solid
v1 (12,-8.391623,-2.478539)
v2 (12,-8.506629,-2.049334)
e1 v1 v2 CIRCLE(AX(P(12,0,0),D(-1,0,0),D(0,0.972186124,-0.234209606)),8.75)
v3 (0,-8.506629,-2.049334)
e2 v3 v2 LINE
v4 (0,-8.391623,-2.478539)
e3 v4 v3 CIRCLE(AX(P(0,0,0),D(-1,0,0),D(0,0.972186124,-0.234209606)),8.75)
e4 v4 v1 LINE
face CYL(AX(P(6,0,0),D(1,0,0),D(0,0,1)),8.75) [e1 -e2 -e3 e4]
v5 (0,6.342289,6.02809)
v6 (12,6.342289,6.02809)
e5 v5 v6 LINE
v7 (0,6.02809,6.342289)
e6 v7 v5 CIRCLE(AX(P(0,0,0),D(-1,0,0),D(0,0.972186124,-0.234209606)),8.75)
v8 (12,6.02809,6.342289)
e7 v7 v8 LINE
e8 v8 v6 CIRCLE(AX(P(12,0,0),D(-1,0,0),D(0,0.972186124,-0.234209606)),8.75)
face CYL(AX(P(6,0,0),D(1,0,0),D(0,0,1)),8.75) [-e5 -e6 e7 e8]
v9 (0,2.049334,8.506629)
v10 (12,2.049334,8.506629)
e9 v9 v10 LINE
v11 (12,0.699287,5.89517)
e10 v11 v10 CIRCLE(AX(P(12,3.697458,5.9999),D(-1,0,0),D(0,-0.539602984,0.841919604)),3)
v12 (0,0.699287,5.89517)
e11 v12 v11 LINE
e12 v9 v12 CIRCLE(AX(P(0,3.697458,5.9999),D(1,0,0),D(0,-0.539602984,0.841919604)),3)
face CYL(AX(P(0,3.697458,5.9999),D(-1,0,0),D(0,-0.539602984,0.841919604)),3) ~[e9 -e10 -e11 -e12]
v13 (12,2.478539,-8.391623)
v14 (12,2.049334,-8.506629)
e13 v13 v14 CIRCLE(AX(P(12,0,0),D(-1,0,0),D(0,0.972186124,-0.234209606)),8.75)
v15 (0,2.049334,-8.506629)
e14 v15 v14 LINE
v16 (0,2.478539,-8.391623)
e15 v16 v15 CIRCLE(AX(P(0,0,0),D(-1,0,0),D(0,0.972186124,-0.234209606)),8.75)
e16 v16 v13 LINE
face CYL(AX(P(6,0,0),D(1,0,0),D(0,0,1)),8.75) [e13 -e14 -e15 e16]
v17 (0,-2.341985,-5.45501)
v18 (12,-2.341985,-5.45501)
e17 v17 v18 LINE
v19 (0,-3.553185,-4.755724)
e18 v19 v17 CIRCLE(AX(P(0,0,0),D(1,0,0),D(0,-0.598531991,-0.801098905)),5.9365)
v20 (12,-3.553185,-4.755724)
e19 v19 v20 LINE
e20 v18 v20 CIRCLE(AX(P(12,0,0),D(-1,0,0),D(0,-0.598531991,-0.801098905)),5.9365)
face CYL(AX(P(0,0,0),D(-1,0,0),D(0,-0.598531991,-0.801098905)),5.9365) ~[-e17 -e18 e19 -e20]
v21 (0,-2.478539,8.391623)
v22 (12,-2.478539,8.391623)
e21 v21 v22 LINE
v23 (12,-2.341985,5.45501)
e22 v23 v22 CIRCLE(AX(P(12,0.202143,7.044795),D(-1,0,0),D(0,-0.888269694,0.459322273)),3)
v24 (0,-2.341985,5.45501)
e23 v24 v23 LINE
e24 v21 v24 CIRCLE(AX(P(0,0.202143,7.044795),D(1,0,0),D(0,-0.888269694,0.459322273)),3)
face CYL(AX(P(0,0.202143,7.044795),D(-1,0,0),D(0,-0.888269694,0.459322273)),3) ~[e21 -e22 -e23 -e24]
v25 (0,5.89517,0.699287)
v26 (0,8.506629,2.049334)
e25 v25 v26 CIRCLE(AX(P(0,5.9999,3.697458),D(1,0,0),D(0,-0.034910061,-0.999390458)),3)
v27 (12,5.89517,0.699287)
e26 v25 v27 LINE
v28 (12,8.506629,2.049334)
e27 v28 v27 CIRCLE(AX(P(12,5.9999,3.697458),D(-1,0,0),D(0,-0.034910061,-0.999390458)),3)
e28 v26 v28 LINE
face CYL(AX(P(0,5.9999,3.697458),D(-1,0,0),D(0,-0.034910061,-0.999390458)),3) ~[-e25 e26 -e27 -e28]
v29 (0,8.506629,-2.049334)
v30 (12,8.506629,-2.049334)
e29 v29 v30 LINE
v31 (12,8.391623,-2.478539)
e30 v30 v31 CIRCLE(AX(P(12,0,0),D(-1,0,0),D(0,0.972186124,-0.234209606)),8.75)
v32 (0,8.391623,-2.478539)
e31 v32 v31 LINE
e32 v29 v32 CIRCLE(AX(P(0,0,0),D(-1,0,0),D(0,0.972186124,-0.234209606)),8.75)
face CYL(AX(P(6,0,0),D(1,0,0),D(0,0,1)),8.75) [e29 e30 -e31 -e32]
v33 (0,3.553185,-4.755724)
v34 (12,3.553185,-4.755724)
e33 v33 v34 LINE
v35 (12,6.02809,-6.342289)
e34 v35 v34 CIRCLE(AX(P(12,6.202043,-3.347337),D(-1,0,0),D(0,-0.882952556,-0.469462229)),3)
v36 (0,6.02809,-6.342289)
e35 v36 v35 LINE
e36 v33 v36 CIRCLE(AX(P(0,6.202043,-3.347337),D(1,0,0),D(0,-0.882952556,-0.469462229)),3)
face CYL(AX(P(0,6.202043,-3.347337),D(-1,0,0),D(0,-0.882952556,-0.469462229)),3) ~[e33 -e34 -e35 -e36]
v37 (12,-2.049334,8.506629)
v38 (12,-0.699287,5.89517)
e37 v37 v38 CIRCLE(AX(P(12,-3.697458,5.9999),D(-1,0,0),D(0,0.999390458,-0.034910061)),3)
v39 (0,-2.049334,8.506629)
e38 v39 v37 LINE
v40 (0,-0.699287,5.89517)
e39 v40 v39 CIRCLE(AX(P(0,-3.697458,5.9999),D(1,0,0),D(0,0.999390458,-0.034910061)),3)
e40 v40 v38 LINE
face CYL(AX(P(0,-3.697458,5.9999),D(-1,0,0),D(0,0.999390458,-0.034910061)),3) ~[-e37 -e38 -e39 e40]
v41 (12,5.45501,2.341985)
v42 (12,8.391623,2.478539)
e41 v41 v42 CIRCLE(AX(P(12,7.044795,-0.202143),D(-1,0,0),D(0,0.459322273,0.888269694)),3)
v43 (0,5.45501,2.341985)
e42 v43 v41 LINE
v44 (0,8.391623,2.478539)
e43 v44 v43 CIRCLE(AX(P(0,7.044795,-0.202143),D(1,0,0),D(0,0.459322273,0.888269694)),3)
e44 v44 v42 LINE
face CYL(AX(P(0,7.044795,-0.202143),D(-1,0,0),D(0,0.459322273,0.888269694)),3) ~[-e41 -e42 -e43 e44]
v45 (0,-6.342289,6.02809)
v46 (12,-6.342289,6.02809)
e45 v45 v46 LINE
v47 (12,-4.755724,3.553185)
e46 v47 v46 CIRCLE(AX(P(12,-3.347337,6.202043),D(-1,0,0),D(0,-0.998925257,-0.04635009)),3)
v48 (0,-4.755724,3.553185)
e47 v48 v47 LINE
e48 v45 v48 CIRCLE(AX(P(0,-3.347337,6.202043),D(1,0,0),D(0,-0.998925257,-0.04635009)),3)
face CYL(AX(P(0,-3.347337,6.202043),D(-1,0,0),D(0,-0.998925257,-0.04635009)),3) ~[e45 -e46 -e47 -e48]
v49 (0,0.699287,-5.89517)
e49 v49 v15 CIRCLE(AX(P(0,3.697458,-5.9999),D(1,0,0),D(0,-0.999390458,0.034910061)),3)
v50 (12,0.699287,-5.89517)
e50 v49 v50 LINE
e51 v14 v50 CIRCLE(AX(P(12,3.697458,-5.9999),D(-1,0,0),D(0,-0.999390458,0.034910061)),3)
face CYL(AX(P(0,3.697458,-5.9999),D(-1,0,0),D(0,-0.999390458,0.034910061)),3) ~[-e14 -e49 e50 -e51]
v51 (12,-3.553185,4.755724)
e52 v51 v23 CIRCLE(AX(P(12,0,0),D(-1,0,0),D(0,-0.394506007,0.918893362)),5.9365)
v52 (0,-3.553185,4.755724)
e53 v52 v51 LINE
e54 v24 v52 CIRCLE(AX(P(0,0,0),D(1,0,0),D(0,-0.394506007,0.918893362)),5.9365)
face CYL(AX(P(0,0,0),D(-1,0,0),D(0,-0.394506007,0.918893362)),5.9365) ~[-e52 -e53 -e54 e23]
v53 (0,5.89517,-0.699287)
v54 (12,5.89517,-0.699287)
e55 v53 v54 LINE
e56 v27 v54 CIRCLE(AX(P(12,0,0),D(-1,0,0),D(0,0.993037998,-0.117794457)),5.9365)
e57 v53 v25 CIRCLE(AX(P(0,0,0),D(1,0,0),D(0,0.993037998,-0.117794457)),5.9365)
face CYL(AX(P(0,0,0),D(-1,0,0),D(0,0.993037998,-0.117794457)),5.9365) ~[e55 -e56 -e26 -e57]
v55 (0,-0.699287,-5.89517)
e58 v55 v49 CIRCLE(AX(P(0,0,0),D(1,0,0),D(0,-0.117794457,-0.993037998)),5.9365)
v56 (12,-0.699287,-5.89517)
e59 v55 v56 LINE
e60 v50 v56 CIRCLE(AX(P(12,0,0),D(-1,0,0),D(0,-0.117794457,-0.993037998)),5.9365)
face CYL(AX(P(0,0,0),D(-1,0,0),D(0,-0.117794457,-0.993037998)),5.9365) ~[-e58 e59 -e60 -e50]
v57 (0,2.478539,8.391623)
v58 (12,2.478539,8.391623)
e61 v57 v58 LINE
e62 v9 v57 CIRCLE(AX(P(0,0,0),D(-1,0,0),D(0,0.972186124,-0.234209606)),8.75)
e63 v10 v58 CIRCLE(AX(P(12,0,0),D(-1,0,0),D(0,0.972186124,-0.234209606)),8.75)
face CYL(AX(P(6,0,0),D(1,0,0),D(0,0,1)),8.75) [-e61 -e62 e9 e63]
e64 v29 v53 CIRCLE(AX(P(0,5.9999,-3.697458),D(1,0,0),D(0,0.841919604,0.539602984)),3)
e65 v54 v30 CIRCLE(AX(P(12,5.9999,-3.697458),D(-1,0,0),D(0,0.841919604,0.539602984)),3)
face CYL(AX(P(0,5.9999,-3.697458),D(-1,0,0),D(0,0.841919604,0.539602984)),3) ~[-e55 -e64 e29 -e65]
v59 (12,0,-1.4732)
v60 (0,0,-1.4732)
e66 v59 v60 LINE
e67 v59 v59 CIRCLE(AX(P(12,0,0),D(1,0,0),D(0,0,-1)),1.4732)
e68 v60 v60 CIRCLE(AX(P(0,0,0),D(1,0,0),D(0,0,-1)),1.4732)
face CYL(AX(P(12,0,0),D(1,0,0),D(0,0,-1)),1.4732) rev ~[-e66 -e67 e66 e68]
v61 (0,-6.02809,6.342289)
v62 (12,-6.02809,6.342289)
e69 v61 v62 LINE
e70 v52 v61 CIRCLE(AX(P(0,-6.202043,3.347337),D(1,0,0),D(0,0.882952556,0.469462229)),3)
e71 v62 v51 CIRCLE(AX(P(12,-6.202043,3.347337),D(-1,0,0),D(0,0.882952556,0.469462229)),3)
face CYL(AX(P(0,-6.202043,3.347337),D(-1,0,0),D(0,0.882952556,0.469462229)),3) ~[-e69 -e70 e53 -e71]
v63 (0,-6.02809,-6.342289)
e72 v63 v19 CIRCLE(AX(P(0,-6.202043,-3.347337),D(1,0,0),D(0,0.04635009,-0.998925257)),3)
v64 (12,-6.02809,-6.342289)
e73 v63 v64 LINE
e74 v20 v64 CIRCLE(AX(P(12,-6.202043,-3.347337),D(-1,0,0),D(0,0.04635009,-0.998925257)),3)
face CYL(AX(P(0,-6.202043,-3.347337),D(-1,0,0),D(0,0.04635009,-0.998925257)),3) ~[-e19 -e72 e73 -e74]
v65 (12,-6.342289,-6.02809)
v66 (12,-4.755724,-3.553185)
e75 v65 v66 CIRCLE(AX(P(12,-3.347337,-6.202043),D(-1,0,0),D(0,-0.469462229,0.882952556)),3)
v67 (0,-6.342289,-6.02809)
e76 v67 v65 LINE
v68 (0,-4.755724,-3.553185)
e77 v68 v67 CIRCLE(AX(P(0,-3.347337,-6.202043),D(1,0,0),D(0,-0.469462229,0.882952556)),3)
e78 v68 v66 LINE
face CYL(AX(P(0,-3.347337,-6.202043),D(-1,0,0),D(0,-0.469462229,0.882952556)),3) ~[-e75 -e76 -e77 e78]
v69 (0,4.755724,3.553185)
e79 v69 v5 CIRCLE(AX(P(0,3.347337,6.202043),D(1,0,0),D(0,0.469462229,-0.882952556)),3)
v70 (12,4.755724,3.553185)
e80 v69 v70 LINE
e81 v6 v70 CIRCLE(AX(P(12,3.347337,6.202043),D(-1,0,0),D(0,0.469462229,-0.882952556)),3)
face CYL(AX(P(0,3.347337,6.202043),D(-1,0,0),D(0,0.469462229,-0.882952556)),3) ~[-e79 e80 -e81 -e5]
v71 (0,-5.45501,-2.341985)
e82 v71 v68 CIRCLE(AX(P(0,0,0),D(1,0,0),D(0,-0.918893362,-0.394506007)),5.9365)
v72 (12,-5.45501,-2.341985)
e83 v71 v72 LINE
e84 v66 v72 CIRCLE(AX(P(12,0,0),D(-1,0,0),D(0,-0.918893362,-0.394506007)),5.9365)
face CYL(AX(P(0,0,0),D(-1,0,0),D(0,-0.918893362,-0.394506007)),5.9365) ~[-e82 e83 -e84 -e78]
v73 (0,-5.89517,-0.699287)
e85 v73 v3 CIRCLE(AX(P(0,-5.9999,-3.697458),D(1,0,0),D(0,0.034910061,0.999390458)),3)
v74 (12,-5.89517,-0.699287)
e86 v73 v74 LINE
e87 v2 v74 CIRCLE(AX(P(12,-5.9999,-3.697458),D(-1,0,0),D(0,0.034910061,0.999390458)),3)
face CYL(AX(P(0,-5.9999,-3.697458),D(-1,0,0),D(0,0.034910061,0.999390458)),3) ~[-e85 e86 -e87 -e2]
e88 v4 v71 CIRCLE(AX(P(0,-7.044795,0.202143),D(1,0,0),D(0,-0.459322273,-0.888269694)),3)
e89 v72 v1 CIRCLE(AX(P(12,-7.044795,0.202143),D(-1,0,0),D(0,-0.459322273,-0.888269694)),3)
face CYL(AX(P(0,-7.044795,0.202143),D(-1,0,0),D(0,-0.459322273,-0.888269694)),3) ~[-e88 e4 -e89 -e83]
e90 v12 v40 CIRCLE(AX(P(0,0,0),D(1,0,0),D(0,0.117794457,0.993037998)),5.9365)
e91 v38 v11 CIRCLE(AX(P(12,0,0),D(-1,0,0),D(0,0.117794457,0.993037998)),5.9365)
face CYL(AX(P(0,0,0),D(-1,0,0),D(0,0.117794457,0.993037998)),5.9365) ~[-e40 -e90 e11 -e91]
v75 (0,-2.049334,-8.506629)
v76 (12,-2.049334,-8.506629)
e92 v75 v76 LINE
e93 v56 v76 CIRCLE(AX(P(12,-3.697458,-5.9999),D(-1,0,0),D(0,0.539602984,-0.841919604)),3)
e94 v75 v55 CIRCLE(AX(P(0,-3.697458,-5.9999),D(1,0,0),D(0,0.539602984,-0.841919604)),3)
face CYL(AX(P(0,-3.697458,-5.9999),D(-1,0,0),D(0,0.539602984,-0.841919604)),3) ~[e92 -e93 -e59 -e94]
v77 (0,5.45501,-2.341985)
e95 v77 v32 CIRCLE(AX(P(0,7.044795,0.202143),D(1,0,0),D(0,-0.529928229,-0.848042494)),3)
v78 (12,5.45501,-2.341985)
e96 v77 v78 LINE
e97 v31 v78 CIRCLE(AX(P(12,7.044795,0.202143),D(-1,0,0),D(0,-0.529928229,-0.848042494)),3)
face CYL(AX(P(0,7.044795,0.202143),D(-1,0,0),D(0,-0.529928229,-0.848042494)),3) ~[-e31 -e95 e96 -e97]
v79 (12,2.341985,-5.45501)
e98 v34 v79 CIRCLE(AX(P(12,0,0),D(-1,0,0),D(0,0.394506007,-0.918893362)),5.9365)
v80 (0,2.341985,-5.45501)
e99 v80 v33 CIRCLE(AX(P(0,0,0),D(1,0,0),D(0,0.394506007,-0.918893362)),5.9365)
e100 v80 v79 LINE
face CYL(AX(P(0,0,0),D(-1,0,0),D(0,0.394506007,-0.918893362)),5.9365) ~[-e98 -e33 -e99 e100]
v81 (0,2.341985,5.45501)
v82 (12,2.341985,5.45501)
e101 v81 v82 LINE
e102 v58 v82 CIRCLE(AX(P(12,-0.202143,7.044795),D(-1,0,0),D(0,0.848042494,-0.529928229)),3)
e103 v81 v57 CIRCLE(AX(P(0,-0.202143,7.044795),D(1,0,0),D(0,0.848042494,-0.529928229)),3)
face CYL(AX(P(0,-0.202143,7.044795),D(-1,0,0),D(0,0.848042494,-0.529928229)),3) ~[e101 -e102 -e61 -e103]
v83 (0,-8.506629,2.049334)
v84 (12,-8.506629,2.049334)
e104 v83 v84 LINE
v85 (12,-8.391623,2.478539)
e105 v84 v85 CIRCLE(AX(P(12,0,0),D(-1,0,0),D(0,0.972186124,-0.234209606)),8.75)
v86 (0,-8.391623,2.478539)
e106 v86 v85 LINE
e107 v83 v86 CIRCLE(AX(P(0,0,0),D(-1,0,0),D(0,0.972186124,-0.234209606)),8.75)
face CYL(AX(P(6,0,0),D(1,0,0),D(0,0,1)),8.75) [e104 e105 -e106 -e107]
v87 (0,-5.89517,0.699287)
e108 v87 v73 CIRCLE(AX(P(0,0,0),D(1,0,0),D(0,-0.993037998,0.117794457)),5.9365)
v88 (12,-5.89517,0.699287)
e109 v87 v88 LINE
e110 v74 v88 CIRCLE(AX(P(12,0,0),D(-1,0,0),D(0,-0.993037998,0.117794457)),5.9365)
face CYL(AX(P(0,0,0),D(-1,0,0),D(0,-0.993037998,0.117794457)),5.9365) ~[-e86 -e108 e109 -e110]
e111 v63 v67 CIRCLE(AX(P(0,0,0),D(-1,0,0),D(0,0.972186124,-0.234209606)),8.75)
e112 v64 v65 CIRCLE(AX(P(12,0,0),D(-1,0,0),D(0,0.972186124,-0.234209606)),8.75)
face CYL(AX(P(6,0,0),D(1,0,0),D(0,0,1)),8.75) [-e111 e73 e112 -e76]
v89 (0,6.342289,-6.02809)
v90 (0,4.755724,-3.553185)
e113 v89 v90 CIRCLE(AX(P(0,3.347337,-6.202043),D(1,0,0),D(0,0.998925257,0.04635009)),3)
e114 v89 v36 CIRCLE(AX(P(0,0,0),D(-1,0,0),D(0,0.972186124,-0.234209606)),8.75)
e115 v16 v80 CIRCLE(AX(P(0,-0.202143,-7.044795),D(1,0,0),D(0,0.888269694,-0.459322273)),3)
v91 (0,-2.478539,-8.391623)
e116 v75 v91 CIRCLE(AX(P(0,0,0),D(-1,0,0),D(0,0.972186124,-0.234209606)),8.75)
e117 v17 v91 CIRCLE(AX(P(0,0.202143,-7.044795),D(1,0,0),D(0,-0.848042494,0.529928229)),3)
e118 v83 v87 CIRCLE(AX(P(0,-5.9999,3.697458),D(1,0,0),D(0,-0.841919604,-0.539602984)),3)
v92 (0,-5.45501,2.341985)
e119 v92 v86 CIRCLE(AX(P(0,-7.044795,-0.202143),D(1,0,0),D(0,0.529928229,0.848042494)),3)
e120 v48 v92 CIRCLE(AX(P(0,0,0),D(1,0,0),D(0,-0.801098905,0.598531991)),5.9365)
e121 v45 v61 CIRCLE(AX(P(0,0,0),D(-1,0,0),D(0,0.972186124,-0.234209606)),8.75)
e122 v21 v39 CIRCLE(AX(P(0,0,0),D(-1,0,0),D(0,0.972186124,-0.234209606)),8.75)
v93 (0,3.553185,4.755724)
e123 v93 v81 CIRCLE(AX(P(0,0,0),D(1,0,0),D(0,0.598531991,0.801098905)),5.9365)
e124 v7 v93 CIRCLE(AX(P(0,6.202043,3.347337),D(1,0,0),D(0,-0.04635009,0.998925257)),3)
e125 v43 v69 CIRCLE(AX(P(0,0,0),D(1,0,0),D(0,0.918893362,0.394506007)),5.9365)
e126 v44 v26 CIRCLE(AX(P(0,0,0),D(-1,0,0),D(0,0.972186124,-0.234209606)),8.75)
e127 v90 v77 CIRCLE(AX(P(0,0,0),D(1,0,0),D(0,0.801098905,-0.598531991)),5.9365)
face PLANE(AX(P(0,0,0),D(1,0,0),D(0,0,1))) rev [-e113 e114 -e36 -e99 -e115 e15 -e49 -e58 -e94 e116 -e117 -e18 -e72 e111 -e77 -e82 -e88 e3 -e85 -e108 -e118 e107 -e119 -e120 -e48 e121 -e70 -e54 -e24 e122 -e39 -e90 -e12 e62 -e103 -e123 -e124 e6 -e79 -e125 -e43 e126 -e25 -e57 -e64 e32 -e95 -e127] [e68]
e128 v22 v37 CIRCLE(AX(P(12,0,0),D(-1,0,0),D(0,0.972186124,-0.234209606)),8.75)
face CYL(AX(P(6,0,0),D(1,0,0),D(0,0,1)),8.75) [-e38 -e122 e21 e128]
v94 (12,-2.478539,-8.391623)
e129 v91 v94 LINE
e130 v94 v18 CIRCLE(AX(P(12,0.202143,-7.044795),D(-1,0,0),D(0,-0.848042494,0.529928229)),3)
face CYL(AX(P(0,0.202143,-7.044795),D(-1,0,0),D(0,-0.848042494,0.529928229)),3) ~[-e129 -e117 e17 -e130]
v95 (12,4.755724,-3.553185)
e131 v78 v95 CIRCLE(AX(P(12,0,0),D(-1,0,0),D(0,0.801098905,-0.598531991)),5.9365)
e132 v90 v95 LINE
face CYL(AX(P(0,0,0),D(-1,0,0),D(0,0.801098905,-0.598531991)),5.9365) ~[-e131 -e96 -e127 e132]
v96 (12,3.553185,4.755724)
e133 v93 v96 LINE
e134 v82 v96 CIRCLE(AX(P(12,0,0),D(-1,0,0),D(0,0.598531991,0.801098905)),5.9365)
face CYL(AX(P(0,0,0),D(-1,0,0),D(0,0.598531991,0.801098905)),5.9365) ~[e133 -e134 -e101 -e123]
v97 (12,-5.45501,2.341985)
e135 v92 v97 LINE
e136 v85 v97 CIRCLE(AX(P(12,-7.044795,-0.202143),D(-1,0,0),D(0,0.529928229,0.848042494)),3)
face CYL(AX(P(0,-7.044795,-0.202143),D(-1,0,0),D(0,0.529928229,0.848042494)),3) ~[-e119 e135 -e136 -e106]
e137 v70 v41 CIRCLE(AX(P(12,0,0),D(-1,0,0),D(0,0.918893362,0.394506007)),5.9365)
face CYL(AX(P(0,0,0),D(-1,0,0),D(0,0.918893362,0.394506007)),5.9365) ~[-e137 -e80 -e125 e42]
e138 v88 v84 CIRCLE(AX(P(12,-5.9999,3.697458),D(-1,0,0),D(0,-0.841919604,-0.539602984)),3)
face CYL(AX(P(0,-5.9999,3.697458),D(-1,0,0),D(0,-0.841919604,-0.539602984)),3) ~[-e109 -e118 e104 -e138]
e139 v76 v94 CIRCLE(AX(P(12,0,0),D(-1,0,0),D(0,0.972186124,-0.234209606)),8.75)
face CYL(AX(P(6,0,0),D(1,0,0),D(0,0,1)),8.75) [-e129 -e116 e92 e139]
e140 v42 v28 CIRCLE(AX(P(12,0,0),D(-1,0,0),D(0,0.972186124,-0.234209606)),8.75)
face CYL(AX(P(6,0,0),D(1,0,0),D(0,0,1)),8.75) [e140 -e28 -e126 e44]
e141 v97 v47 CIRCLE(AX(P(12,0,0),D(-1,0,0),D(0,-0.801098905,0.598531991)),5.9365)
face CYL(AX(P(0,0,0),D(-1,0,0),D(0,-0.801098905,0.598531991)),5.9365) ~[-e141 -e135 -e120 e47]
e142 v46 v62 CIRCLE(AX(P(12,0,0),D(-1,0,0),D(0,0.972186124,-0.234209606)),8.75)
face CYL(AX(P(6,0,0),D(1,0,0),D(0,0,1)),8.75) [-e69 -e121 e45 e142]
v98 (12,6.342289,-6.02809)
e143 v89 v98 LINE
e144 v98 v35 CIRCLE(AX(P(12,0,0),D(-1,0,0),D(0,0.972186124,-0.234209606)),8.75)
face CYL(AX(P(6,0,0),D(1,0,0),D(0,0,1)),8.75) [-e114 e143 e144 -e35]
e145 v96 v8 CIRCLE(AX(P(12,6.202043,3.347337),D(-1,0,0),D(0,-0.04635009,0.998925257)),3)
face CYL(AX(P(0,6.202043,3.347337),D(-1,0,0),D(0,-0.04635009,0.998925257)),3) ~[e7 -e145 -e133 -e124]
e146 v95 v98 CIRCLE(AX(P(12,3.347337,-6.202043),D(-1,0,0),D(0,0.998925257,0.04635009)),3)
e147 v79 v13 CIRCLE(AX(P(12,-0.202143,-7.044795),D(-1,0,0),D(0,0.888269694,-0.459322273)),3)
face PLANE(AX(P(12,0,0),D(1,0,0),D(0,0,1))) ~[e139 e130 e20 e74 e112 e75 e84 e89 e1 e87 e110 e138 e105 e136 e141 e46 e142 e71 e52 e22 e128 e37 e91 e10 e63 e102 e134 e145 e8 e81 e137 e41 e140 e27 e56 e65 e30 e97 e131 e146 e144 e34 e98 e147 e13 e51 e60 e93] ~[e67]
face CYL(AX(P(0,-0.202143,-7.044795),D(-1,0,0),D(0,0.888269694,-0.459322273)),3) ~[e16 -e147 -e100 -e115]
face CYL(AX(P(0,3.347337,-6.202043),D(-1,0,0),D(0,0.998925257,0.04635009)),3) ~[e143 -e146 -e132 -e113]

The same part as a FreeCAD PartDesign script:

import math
import FreeCAD as App
import Part
import Sketcher

V = App.Vector

doc = App.newDocument("Part")
params = doc.addObject("Spreadsheet::Sheet", "Params")
for row, (alias, value) in enumerate([
    ("sketch1_width", "12 mm"),
    ("sketch1_height", "8.75 mm"),
    ("revolution_angle", "360 deg"),
    ("sketch2_radius", "3 mm"),
    ("sketch3_diameter", "0.8 mm"),
    ("pocket2_length", "100.000102 mm"),
], start=1):
    params.set(f"A{row}", alias)
    params.set(f"B{row}", "=" + value)
    params.setAlias(f"B{row}", alias)

body = doc.addObject("PartDesign::Body", "Body")

# Sketch on XZ plane
sketch1 = body.newObject("Sketcher::SketchObject", "Sketch")
sketch1.AttachmentSupport = (doc.getObject("XZ_Plane"), [""])
sketch1.MapMode = "FlatFace"
sketch1.addGeometry([
    Part.LineSegment(V(0, -8.75, 0), V(0, 0, 0)),
    Part.LineSegment(V(0, 0, 0), V(12, 0, 0)),
    Part.LineSegment(V(12, 0, 0), V(12, -8.75, 0)),
    Part.LineSegment(V(12, -8.75, 0), V(0, -8.75, 0)),
], False)
sketch1.addConstraint([
    Sketcher.Constraint("Coincident", 0, 2, 1, 1),
    Sketcher.Constraint("Coincident", 1, 2, 2, 1),
    Sketcher.Constraint("Coincident", 2, 2, 3, 1),
    Sketcher.Constraint("Coincident", 3, 2, 0, 1),
    Sketcher.Constraint("Vertical", 0),
    Sketcher.Constraint("Horizontal", 1),
    Sketcher.Constraint("Vertical", 2),
    Sketcher.Constraint("Horizontal", 3),
    Sketcher.Constraint("Coincident", 0, 2, -1, 1),
    Sketcher.Constraint("DistanceX", 1, 1, 1, 2, 12.0),
    Sketcher.Constraint("DistanceY", 0, 1, 0, 2, 8.75),
])
sketch1.setExpression("Constraints[9]", "Params.sketch1_width")
sketch1.setExpression("Constraints[10]", "Params.sketch1_height")
revolution = body.newObject("PartDesign::Revolution", "Revolution")
revolution.Profile = sketch1
revolution.ReferenceAxis = (sketch1, ["H_Axis"])
revolution.setExpression("Angle", "Params.revolution_angle")

# Sketch on YZ plane
sketch2 = body.newObject("Sketcher::SketchObject", "Sketch001")
sketch2.AttachmentSupport = (doc.getObject("YZ_Plane"), [""])
sketch2.MapMode = "FlatFace"
sketch2.addGeometry([
    Part.ArcOfCircle(Part.Circle(V(0, 0, 0), V(0, 0, 1), 5.9365), math.radians(-6.764831), math.radians(6.764831)),
    Part.ArcOfCircle(Part.Circle(V(5.9999, -3.697458, 0), V(0, 0, 1), 3), math.radians(32.656616), math.radians(92.000606)),
    Part.ArcOfCircle(Part.Circle(V(0, 0, 0), V(0, 0, 1), 8.7754), math.radians(-13.702014), math.radians(13.702014)),
    Part.ArcOfCircle(Part.Circle(V(5.9999, 3.697458, 0), V(0, 0, 1), 3), math.radians(-92.000606), math.radians(-32.656616)),
], False)
sketch2.addConstraint([
    Sketcher.Constraint("Coincident", 0, 1, 1, 2),
    Sketcher.Constraint("Coincident", 1, 1, 2, 1),
    Sketcher.Constraint("Coincident", 2, 2, 3, 2),
    Sketcher.Constraint("Coincident", 3, 1, 0, 2),
    Sketcher.Constraint("Coincident", 0, 3, -1, 1),
    Sketcher.Constraint("Coincident", 2, 3, -1, 1),
    Sketcher.Constraint("Equal", 1, 3),
    Sketcher.Constraint("Symmetric", 1, 3, 3, 3, -1),
    Sketcher.Constraint("Radius", 1, 3.0),
    Sketcher.Constraint("Radius", 0, 5.9365),
    Sketcher.Constraint("Radius", 2, 8.7754),
    Sketcher.Constraint("DistanceX", -1, 1, 1, 3, 5.9999),
    Sketcher.Constraint("DistanceY", 1, 1, 2, 2, 4.157298),
])
sketch2.setExpression("Constraints[8]", "Params.sketch2_radius")
pocket1 = body.newObject("PartDesign::Pocket", "Pocket")
pocket1.Profile = sketch2
pocket1.Type = "ThroughAll"
pocket1.Reversed = True
doc.recompute()

polarpattern = body.newObject("PartDesign::PolarPattern", "PolarPattern")
polarpattern.Originals = [pocket1]
polarpattern.Axis = (doc.getObject("X_Axis"), [""])
polarpattern.Angle = 360
polarpattern.Occurrences = 12
body.Tip = polarpattern

# Sketch on YZ plane
sketch3 = body.newObject("Sketcher::SketchObject", "Sketch002")
sketch3.AttachmentSupport = (doc.getObject("YZ_Plane"), [""])
sketch3.MapMode = "FlatFace"
sketch3.addGeometry(Part.Circle(V(0, 0, 0), V(0, 0, 1), 0.4), False)
sketch3.addConstraint([
    Sketcher.Constraint("Coincident", 0, 3, -1, 1),
    Sketcher.Constraint("Diameter", 0, 0.8),
])
sketch3.setExpression("Constraints[1]", "Params.sketch3_diameter")
pocket2 = body.newObject("PartDesign::Pocket", "Pocket001")
pocket2.Profile = sketch3
pocket2.setExpression("Length", "Params.pocket2_length")
pocket2.Midplane = True

# Sketch on YZ plane
sketch4 = body.newObject("Sketcher::SketchObject", "Sketch003")
sketch4.AttachmentSupport = (doc.getObject("YZ_Plane"), [""])
sketch4.MapMode = "FlatFace"
sketch4.AttachmentOffset = App.Placement(V(0, 0, 12), App.Rotation())
sketch4.addGeometry(Part.Circle(V(0, 0, 0), V(0, 0, 1), 1.4732), False)
sketch4.addConstraint([
    Sketcher.Constraint("Coincident", 0, 3, -1, 1),
    Sketcher.Constraint("Diameter", 0, 2.9464),
])
pocket3 = body.newObject("PartDesign::Pocket", "Pocket002")
pocket3.Profile = sketch4
pocket3.Type = "ThroughAll"

doc.recompute()
